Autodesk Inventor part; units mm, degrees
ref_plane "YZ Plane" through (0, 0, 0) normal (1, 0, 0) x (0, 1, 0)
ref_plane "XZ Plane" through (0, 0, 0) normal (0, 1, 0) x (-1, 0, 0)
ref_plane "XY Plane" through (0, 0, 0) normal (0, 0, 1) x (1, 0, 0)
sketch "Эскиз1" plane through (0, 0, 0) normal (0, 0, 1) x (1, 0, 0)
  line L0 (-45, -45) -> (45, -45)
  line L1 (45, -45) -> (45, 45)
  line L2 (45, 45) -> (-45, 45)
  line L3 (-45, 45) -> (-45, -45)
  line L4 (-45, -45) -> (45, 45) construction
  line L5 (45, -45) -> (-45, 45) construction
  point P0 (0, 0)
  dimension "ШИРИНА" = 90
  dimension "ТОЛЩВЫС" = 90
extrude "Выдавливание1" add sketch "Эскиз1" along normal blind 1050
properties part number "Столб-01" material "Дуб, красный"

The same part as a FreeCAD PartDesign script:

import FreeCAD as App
import Part
import Sketcher

V = App.Vector
Q = App.Units.Quantity


def add_polygon(sketch, points):
    """Adds a closed chain of lines whose ends are joined by coincident constraints."""
    first, n = sketch.GeometryCount, len(points)
    for a, b in zip(points, points[1:] + points[:1]):
        sketch.addGeometry(Part.LineSegment(App.Vector(*a, 0), App.Vector(*b, 0)), False)
    for i in range(n):
        sketch.addConstraint(Sketcher.Constraint("Coincident", first + i, 2, first + (i + 1) % n, 1))

doc = App.newDocument("Part")
body = doc.addObject("PartDesign::Body", "Body")

sketch1 = doc.addObject("Sketcher::SketchObject", "Sketch")
body.addObject(sketch1)
sketch1.AttachmentSupport = (doc.XY_Plane, [""])
sketch1.MapMode = "FlatFace"
add_polygon(sketch1, [(-45, 45), (-45, -45), (45, -45), (45, 45)])
sketch1.addConstraint([
    Sketcher.Constraint("Vertical", 0),
    Sketcher.Constraint("Horizontal", 1),
    Sketcher.Constraint("Vertical", 2),
    Sketcher.Constraint("Horizontal", 3),
    Sketcher.Constraint("Symmetric", 0, 2, 2, 2, -1, 1),
    Sketcher.Constraint("Equal", 3, 0),
    Sketcher.Constraint("DistanceX", 1, 1, 1, 2, Q("90 mm")),
])
pad1 = doc.addObject("PartDesign::Pad", "Pad")
body.addObject(pad1)
pad1.Profile = sketch1
pad1.Length = 1050

doc.recompute()
